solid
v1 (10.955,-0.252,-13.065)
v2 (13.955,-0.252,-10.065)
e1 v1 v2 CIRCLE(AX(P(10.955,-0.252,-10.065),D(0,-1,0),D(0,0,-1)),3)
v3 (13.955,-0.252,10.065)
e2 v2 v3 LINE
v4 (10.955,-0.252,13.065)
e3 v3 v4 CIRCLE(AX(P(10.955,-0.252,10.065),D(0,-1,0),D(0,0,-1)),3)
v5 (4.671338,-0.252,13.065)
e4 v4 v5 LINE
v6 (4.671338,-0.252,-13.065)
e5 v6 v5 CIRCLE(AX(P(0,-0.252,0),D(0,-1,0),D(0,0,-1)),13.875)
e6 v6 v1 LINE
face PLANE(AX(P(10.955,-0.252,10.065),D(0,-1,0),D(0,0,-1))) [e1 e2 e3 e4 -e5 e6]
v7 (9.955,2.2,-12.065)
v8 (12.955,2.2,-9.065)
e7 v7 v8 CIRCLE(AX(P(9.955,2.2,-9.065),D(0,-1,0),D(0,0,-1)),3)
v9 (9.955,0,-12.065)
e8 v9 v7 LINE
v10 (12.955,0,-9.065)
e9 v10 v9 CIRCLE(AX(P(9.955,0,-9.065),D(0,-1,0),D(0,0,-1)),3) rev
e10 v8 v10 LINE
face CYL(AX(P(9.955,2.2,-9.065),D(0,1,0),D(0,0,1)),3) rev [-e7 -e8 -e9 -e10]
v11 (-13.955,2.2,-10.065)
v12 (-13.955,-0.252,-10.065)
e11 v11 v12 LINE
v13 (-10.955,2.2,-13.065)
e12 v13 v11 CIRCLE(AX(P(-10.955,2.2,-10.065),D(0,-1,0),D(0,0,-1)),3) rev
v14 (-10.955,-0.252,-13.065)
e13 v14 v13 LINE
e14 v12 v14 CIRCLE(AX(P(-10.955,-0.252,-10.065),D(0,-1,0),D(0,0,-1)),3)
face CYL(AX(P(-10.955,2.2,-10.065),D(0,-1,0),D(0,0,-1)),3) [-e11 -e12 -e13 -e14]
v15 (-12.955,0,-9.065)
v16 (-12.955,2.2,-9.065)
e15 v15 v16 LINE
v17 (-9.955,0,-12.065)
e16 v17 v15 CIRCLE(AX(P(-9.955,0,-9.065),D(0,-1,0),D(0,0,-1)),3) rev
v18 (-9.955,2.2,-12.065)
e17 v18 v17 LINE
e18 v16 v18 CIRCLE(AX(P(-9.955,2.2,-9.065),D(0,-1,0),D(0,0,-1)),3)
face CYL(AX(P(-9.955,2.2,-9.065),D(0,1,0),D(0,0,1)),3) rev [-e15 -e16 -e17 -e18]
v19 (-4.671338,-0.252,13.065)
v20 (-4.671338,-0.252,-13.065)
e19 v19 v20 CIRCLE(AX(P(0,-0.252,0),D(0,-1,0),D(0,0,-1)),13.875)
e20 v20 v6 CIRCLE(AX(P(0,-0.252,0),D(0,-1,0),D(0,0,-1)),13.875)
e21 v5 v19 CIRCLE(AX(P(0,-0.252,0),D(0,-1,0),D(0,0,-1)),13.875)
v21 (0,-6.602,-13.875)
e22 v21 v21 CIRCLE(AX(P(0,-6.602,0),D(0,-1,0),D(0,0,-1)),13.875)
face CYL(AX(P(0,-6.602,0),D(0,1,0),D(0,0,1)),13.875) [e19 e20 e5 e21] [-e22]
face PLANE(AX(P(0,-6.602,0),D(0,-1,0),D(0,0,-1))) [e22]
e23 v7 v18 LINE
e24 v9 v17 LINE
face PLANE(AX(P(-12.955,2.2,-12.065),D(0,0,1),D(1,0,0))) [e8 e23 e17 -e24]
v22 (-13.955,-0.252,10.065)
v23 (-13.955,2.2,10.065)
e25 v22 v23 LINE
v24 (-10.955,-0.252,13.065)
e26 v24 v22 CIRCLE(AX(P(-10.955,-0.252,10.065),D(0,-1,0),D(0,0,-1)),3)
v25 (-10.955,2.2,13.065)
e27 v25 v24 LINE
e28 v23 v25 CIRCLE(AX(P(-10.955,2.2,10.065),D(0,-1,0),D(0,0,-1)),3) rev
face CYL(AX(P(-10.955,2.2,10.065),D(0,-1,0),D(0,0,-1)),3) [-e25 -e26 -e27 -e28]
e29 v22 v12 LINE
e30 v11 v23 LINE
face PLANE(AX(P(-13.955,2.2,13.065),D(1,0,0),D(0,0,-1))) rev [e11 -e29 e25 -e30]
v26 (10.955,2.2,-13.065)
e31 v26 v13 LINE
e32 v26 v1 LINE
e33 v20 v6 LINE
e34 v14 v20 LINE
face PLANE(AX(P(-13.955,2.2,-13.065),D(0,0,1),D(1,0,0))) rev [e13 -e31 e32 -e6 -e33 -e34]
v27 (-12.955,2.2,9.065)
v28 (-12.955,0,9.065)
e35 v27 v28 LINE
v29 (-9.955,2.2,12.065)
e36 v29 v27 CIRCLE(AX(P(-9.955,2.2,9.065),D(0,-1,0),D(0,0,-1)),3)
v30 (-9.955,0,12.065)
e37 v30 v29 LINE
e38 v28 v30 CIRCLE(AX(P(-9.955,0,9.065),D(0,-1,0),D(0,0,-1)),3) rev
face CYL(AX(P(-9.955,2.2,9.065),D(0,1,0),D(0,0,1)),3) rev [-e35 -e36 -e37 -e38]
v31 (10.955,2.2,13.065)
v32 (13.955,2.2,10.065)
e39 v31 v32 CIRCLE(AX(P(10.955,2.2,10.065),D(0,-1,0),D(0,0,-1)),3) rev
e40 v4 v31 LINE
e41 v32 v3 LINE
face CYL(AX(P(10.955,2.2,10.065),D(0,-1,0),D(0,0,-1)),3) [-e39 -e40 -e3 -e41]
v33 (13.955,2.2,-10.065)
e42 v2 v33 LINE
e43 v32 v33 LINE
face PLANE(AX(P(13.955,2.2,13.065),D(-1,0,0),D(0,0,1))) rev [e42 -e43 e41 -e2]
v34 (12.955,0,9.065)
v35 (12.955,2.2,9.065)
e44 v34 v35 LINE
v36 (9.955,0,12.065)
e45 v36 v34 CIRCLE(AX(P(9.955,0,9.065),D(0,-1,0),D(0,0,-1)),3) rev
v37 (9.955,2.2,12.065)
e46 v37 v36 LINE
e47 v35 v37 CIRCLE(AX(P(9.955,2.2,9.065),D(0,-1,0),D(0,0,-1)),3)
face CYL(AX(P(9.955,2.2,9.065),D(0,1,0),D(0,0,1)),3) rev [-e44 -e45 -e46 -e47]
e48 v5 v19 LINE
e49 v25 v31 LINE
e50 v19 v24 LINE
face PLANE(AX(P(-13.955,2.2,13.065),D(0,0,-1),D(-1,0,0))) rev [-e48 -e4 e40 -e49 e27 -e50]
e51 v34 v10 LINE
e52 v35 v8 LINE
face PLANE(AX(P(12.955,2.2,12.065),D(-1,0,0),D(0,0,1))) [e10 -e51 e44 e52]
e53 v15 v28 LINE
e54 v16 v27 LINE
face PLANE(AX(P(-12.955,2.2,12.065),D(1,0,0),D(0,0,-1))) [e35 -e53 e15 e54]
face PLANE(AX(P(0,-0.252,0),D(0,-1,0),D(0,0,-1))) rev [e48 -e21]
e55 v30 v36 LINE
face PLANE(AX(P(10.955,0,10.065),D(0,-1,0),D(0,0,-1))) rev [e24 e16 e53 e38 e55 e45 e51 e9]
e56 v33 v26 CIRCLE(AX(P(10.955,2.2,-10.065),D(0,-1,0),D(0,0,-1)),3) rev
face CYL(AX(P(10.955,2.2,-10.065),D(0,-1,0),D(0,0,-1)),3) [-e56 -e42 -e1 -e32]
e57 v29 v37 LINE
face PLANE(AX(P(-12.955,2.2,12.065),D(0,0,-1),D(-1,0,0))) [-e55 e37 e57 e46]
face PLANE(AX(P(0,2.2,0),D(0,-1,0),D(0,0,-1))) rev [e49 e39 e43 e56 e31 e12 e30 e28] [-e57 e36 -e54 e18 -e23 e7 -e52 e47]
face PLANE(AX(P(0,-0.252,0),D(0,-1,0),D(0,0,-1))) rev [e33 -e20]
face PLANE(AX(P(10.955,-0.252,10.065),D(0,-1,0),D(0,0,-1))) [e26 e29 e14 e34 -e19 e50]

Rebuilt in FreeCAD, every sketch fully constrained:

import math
import FreeCAD as App
import Part
import Sketcher


def edges_at(feature, points):
    """Names of the edges that pass closest to the given points."""
    edges = feature.Shape.Edges
    near = lambda p: min(range(len(edges)), key=lambda i: edges[i].distToShape(Part.Vertex(*p))[0])
    return sorted({f"Edge{near(p) + 1}" for p in points})

doc = App.newDocument("Part")
body = doc.addObject("PartDesign::Body", "Body")

sketch1 = body.newObject("Sketcher::SketchObject", "Sketch")
sketch1.AttachmentSupport = (doc.getObject("XZ_Plane"), [""])
sketch1.MapMode = "FlatFace"
sketch1.addGeometry([
    Part.LineSegment(App.Vector(-14, -13, 0), App.Vector(-14, 13, 0)),
    Part.LineSegment(App.Vector(-14, 13, 0), App.Vector(14, 13, 0)),
    Part.LineSegment(App.Vector(14, 13, 0), App.Vector(14, -13, 0)),
    Part.LineSegment(App.Vector(14, -13, 0), App.Vector(-14, -13, 0)),
    Part.LineSegment(App.Vector(13, 12, 0), App.Vector(-13, 12, 0)),
    Part.LineSegment(App.Vector(-13, 12, 0), App.Vector(-13, -12, 0)),
    Part.LineSegment(App.Vector(-13, -12, 0), App.Vector(13, -12, 0)),
    Part.LineSegment(App.Vector(13, -12, 0), App.Vector(13, 12, 0)),
], False)
sketch1.addConstraint([
    Sketcher.Constraint("Coincident", 0, 2, 1, 1),
    Sketcher.Constraint("Coincident", 1, 2, 2, 1),
    Sketcher.Constraint("Coincident", 2, 2, 3, 1),
    Sketcher.Constraint("Coincident", 3, 2, 0, 1),
    Sketcher.Constraint("Coincident", 4, 2, 5, 1),
    Sketcher.Constraint("Coincident", 5, 2, 6, 1),
    Sketcher.Constraint("Coincident", 6, 2, 7, 1),
    Sketcher.Constraint("Coincident", 7, 2, 4, 1),
    Sketcher.Constraint("Vertical", 0),
    Sketcher.Constraint("Horizontal", 1),
    Sketcher.Constraint("Vertical", 2),
    Sketcher.Constraint("Horizontal", 3),
    Sketcher.Constraint("Horizontal", 4),
    Sketcher.Constraint("Vertical", 5),
    Sketcher.Constraint("Horizontal", 6),
    Sketcher.Constraint("Vertical", 7),
    Sketcher.Constraint("Symmetric", 0, 2, 2, 2, -1, 1),
    Sketcher.Constraint("Symmetric", 4, 2, 6, 2, -1, 1),
    Sketcher.Constraint("DistanceX", 0, 2, 4, 2, 1.0),
    Sketcher.Constraint("DistanceY", 4, 2, 0, 2, 1.0),
    Sketcher.Constraint("DistanceX", 1, 1, 1, 2, 27.91),
    Sketcher.Constraint("DistanceY", 0, 1, 0, 2, 26.13),
])
pad1 = body.newObject("PartDesign::Pad", "Pad")
pad1.Profile = sketch1
pad1.Length = 2.2
pad1.Reversed = True
doc.recompute()

fillet = body.newObject("PartDesign::Fillet", "Fillet")
fillet.Base = (pad1, edges_at(pad1, [
    (12.955, 1.1, 12.065),
    (12.955, 1.1, -12.065),
    (-12.955, 1.1, -12.065),
    (-12.955, 1.1, 12.065),
    (-13.955, 1.1, -13.065),
    (13.955, 1.1, -13.065),
    (13.955, 1.1, 13.065),
    (-13.955, 1.1, 13.065),
]))
fillet.Radius = 3

sketch2 = body.newObject("Sketcher::SketchObject", "Sketch001")
sketch2.AttachmentSupport = (doc.getObject("XZ_Plane"), [""])
sketch2.MapMode = "FlatFace"
sketch2.addGeometry([
    Part.LineSegment(App.Vector(11, 13.1, 0), App.Vector(-11, 13.1, 0)),
    Part.ArcOfCircle(Part.Circle(App.Vector(-11, 10.1, 0), App.Vector(0, 0, 1), 3), math.radians(90), math.radians(180)),
    Part.LineSegment(App.Vector(-14, 10.1, 0), App.Vector(-14, -10.1, 0)),
    Part.ArcOfCircle(Part.Circle(App.Vector(-11, -10.1, 0), App.Vector(0, 0, 1), 3), math.radians(180), math.radians(270)),
    Part.LineSegment(App.Vector(-11, -13.1, 0), App.Vector(11, -13.1, 0)),
    Part.ArcOfCircle(Part.Circle(App.Vector(11, -10.1, 0), App.Vector(0, 0, 1), 3), math.radians(-90), math.radians(0)),
    Part.LineSegment(App.Vector(14, -10.1, 0), App.Vector(14, 10.1, 0)),
    Part.ArcOfCircle(Part.Circle(App.Vector(11, 10.1, 0), App.Vector(0, 0, 1), 3), math.radians(0), math.radians(90)),
], False)
sketch2.addConstraint([
    Sketcher.Constraint("Tangent", 0, 2, 1, 1),
    Sketcher.Constraint("Tangent", 1, 2, 2, 1),
    Sketcher.Constraint("Tangent", 2, 2, 3, 1),
    Sketcher.Constraint("Tangent", 3, 2, 4, 1),
    Sketcher.Constraint("Tangent", 4, 2, 5, 1),
    Sketcher.Constraint("Tangent", 5, 2, 6, 1),
    Sketcher.Constraint("Tangent", 6, 2, 7, 1),
    Sketcher.Constraint("Tangent", 7, 2, 0, 1),
    Sketcher.Constraint("Horizontal", 0),
    Sketcher.Constraint("Vertical", 2),
    Sketcher.Constraint("Horizontal", 4),
    Sketcher.Constraint("Vertical", 6),
    Sketcher.Constraint("Equal", 1, 3),
    Sketcher.Constraint("Equal", 3, 5),
    Sketcher.Constraint("Equal", 5, 7),
    Sketcher.Constraint("Symmetric", 1, 3, 5, 3, -1, 1),
    Sketcher.Constraint("Radius", 1, 3.0),
    Sketcher.Constraint("DistanceX", 0, 2, 0, 1, 21.91),
    Sketcher.Constraint("DistanceY", 2, 2, 2, 1, 20.13),
])
pad2 = body.newObject("PartDesign::Pad", "Pad001")
pad2.Profile = sketch2
pad2.Length = 0.252

sketch3 = body.newObject("Sketcher::SketchObject", "Sketch002")
sketch3.AttachmentSupport = (doc.getObject("XZ_Plane"), [""])
sketch3.MapMode = "FlatFace"
sketch3.AttachmentOffset = App.Placement(App.Vector(0, 0, 0.252), App.Rotation())
sketch3.addGeometry(Part.Circle(App.Vector(0, 0, 0), App.Vector(0, 0, 1), 14), False)
sketch3.addConstraint([
    Sketcher.Constraint("Coincident", 0, 3, -1, 1),
    Sketcher.Constraint("Diameter", 0, 27.75),
])
pad3 = body.newObject("PartDesign::Pad", "Pad002")
pad3.Profile = sketch3
pad3.Length = 6.35

doc.recompute()
